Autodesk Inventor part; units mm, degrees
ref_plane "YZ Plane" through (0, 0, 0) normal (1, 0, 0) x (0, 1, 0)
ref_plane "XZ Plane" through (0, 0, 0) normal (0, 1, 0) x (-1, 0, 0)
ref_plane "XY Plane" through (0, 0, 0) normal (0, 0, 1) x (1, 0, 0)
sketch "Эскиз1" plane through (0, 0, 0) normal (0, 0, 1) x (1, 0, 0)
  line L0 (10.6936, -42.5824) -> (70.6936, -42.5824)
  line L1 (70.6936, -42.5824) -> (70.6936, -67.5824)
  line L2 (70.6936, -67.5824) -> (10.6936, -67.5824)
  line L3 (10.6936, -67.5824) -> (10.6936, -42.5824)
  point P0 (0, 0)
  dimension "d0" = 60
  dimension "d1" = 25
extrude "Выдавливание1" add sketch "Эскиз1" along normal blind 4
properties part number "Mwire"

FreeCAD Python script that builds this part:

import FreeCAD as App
import Part
import Sketcher

doc = App.newDocument("Part")
body = doc.addObject("PartDesign::Body", "Body")

sketch1 = body.newObject("Sketcher::SketchObject", "Sketch")
sketch1.AttachmentSupport = (doc.getObject("XY_Plane"), [""])
sketch1.MapMode = "FlatFace"
sketch1.addGeometry([
    Part.LineSegment(App.Vector(71, -43, 0), App.Vector(11, -43, 0)),
    Part.LineSegment(App.Vector(11, -43, 0), App.Vector(11, -68, 0)),
    Part.LineSegment(App.Vector(11, -68, 0), App.Vector(71, -68, 0)),
    Part.LineSegment(App.Vector(71, -68, 0), App.Vector(71, -43, 0)),
], False)
sketch1.addConstraint([
    Sketcher.Constraint("Coincident", 0, 2, 1, 1),
    Sketcher.Constraint("Coincident", 1, 2, 2, 1),
    Sketcher.Constraint("Coincident", 2, 2, 3, 1),
    Sketcher.Constraint("Coincident", 3, 2, 0, 1),
    Sketcher.Constraint("Horizontal", 0),
    Sketcher.Constraint("Vertical", 1),
    Sketcher.Constraint("Horizontal", 2),
    Sketcher.Constraint("Vertical", 3),
    Sketcher.Constraint("DistanceX", 0, 2, 0, 1, 60.0),
    Sketcher.Constraint("DistanceY", 1, 2, 1, 1, 25.0),
    Sketcher.Constraint("DistanceX", -1, 1, 0, 2, 10.6936),
    Sketcher.Constraint("DistanceY", 0, 2, -1, 1, 42.5824),
])
pad1 = body.newObject("PartDesign::Pad", "Pad")
pad1.Profile = sketch1
pad1.Length = 4

doc.recompute()
